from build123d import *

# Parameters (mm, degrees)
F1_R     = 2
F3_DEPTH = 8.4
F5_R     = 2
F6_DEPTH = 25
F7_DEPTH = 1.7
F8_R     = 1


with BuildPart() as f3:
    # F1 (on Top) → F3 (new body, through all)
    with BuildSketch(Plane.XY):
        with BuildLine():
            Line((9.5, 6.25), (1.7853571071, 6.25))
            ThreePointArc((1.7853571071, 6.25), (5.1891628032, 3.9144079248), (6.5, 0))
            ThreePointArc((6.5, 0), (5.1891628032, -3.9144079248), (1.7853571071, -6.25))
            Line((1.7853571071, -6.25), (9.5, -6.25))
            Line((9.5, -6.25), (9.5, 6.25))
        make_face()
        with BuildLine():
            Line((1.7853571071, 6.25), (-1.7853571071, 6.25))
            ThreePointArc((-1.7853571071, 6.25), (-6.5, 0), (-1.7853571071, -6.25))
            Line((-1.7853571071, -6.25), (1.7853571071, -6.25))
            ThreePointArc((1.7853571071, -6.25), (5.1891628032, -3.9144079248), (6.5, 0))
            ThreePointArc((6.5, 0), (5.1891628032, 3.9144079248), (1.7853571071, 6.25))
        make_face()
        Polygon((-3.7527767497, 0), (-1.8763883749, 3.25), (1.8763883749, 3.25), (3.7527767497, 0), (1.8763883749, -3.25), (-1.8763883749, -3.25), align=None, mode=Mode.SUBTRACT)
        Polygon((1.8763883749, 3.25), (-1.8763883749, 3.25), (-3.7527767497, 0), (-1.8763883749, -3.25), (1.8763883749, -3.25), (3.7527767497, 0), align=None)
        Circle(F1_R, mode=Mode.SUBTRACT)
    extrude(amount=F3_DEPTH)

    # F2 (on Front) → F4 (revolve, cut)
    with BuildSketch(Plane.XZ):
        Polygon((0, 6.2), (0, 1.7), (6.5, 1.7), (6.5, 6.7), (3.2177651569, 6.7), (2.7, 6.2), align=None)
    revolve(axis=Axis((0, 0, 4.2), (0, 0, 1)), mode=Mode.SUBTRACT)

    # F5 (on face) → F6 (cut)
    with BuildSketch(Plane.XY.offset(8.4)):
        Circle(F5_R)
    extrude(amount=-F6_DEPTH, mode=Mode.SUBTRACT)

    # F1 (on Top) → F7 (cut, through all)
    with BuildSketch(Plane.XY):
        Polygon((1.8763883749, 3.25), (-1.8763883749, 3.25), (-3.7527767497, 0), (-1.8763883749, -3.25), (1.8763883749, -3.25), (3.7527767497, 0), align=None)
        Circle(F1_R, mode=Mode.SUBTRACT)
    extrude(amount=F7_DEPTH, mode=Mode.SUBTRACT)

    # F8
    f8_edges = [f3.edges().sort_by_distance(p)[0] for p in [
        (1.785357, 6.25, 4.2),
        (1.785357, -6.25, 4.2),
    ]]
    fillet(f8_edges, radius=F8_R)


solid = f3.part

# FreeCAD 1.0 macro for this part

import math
import FreeCAD as App
import Part
import Sketcher
from FreeCAD import Vector
Q = App.Units.Quantity


def edges_at(feature, points):
    """Names of the edges that pass closest to the given points."""
    edges = feature.Shape.Edges
    near = lambda p: min(range(len(edges)), key=lambda i: edges[i].distToShape(Part.Vertex(*p))[0])
    return sorted({f"Edge{near(p) + 1}" for p in points})


def add_polygon(sketch, points):
    """Adds a closed chain of lines whose ends are joined by coincident constraints."""
    first, n = sketch.GeometryCount, len(points)
    for a, b in zip(points, points[1:] + points[:1]):
        sketch.addGeometry(Part.LineSegment(App.Vector(*a, 0), App.Vector(*b, 0)), False)
    for i in range(n):
        sketch.addConstraint(Sketcher.Constraint("Coincident", first + i, 2, first + (i + 1) % n, 1))

doc = App.newDocument("Part")
params = doc.addObject("Spreadsheet::Sheet", "Params")
for row, (alias, value) in enumerate([
    ("sketch1_diameter", "4 mm"),
    ("sketch1_radius", "6.5 mm"),
    ("sketch1_height", "12.5 mm"),
    ("pad1_length", "8.4 mm"),
    ("sketch2_height", "5 mm"),
    ("sketch2_width", "6.5 mm"),
    ("sketch2_width2", "2.7 mm"),
    ("sketch2_height2", "4.5 mm"),
    ("groove_angle", "360 deg"),
    ("sketch3_diameter", "4 mm"),
    ("pocket1_length", "25 mm"),
    ("sketch4_diameter", "4 mm"),
    ("pocket2_length", "1.7 mm"),
    ("fillet_radius", "1 mm"),
], start=1):
    params.set(f"A{row}", alias)
    params.set(f"B{row}", "=" + value)
    params.setAlias(f"B{row}", alias)

body = doc.addObject("PartDesign::Body", "Body")

# Sketch on XY plane
sketch1 = doc.addObject("Sketcher::SketchObject", "Sketch")
body.addObject(sketch1)
sketch1.AttachmentSupport = (doc.XY_Plane, [""])
sketch1.MapMode = "FlatFace"
sketch1.addGeometry([
    Part.LineSegment(Vector(9.5, 6.25, 0), Vector(-1.785357, 6.25, 0)),  # 0
    Part.ArcOfCircle(Part.Circle(Vector(0, 0, 0), Vector(0, 0, 1), 6.5), math.radians(105.942369), math.radians(254.057631)),  # 1
    Part.LineSegment(Vector(-1.785357, -6.25, 0), Vector(9.5, -6.25, 0)),  # 2
    Part.LineSegment(Vector(9.5, -6.25, 0), Vector(9.5, 6.25, 0)),  # 3
    Part.Circle(Vector(0, 0, 0), Vector(0, 0, 1), 2),  # 4
], False)
sketch1.addConstraint([
    Sketcher.Constraint("Coincident", 0, 2, 1, 1),
    Sketcher.Constraint("Coincident", 1, 2, 2, 1),
    Sketcher.Constraint("Coincident", 2, 2, 3, 1),
    Sketcher.Constraint("Coincident", 3, 2, 0, 1),
    Sketcher.Constraint("Horizontal", 0),
    Sketcher.Constraint("Horizontal", 2),
    Sketcher.Constraint("Vertical", 3),
    Sketcher.Constraint("Coincident", 1, 3, -1, 1),
    Sketcher.Constraint("Coincident", 4, 3, -1, 1),
    Sketcher.Constraint("Vertical", 0, 2, 1, 2),
    Sketcher.Constraint("Diameter", 4, 4.0),
    Sketcher.Constraint("Radius", 1, 6.5),
    Sketcher.Constraint("DistanceY", 3, 1, 3, 2, 12.5),
    Sketcher.Constraint("DistanceX", -1, 1, 2, 2, 9.5),
])
sketch1.setExpression("Constraints[10]", "Params.sketch1_diameter")
sketch1.setExpression("Constraints[11]", "Params.sketch1_radius")
sketch1.setExpression("Constraints[12]", "Params.sketch1_height")
pad1 = doc.addObject("PartDesign::Pad", "Pad")
body.addObject(pad1)
pad1.Profile = sketch1
pad1.setExpression("Length", "Params.pad1_length")

# Sketch on XZ plane
sketch2 = doc.addObject("Sketcher::SketchObject", "Sketch001")
body.addObject(sketch2)
sketch2.AttachmentSupport = (doc.XZ_Plane, [""])
sketch2.MapMode = "FlatFace"
add_polygon(sketch2, [(0, 6.2), (0, 1.7), (6.5, 1.7), (6.5, 6.7), (3.217765, 6.7), (2.7, 6.2)])  # lines 0-5
sketch2.addConstraint([
    Sketcher.Constraint("Vertical", 0),
    Sketcher.Constraint("Horizontal", 1),
    Sketcher.Constraint("Vertical", 2),
    Sketcher.Constraint("Horizontal", 3),
    Sketcher.Constraint("Horizontal", 5),
    Sketcher.Constraint("PointOnObject", 0, 2, -2),
    Sketcher.Constraint("DistanceY", 2, 1, 2, 2, 5.0),
    Sketcher.Constraint("Angle", 4, Q("-136 deg")),
    Sketcher.Constraint("DistanceX", 1, 1, 1, 2, 6.5),
    Sketcher.Constraint("DistanceX", 5, 2, 5, 1, 2.7),
    Sketcher.Constraint("DistanceY", 0, 2, 0, 1, 4.5),
    Sketcher.Constraint("DistanceY", -1, 1, 0, 2, 1.7),
])
sketch2.setExpression("Constraints[12]", "Params.sketch2_height")
sketch2.setExpression("Constraints[14]", "Params.sketch2_width")
sketch2.setExpression("Constraints[15]", "Params.sketch2_width2")
sketch2.setExpression("Constraints[16]", "Params.sketch2_height2")
groove = doc.addObject("PartDesign::Groove", "Groove")
body.addObject(groove)
groove.Profile = sketch2
groove.ReferenceAxis = (sketch2, ["V_Axis"])
groove.setExpression("Angle", "Params.groove_angle")

# Sketch on XY plane
sketch3 = doc.addObject("Sketcher::SketchObject", "Sketch002")
body.addObject(sketch3)
sketch3.AttachmentSupport = (doc.XY_Plane, [""])
sketch3.MapMode = "FlatFace"
sketch3.AttachmentOffset = App.Placement(Vector(0, 0, 8.4), App.Rotation())
sketch3.addGeometry(Part.Circle(Vector(0, 0, 0), Vector(0, 0, 1), 2), False)
sketch3.addConstraint([
    Sketcher.Constraint("Coincident", 0, 3, -1, 1),
    Sketcher.Constraint("Diameter", 0, 4.0),
])
sketch3.setExpression("Constraints[1]", "Params.sketch3_diameter")
pocket1 = doc.addObject("PartDesign::Pocket", "Pocket")
body.addObject(pocket1)
pocket1.Profile = sketch3
pocket1.setExpression("Length", "Params.pocket1_length")

# Sketch on XY plane
sketch4 = doc.addObject("Sketcher::SketchObject", "Sketch003")
body.addObject(sketch4)
sketch4.AttachmentSupport = (doc.XY_Plane, [""])
sketch4.MapMode = "FlatFace"
add_polygon(sketch4, [(1.876388, 3.25), (-1.876388, 3.25), (-3.752777, 0), (-1.876388, -3.25), (1.876388, -3.25), (3.752777, 0)])  # lines 0-5
sketch4.addGeometry(Part.Circle(Vector(0, 0, 0), Vector(0, 0, 1), 2), False)  # 6
sketch4.addConstraint([
    Sketcher.Constraint("Horizontal", 0),
    Sketcher.Constraint("Horizontal", 3),
    Sketcher.Constraint("Coincident", 6, 3, -1, 1),
    Sketcher.Constraint("Symmetric", 0, 2, 3, 2, -1, 1),
    Sketcher.Constraint("Symmetric", 1, 2, 4, 2, -1, 1),
    Sketcher.Constraint("PointOnObject", 1, 2, -1),
    Sketcher.Constraint("Parallel", 2, 5),
    Sketcher.Constraint("Vertical", 0, 2, 2, 2),
    Sketcher.Constraint("Diameter", 6, 4.0),
    Sketcher.Constraint("Angle", 1, Q("-120 deg")),
    Sketcher.Constraint("DistanceY", 2, 2, 0, 2, 6.5),
    Sketcher.Constraint("DistanceX", 0, 2, 0, 1, 3.752777),
])
sketch4.setExpression("Constraints[14]", "Params.sketch4_diameter")
pocket2 = doc.addObject("PartDesign::Pocket", "Pocket001")
body.addObject(pocket2)
pocket2.Profile = sketch4
pocket2.setExpression("Length", "Params.pocket2_length")
pocket2.Reversed = True
doc.recompute()

fillet = doc.addObject("PartDesign::Fillet", "Fillet")
body.addObject(fillet)
fillet.Base = (pocket2, edges_at(pocket2, [(1.785, 6.25, 4.2), (1.785, -6.25, 4.2)]))
fillet.setExpression("Radius", "Params.fillet_radius")

doc.recompute()
